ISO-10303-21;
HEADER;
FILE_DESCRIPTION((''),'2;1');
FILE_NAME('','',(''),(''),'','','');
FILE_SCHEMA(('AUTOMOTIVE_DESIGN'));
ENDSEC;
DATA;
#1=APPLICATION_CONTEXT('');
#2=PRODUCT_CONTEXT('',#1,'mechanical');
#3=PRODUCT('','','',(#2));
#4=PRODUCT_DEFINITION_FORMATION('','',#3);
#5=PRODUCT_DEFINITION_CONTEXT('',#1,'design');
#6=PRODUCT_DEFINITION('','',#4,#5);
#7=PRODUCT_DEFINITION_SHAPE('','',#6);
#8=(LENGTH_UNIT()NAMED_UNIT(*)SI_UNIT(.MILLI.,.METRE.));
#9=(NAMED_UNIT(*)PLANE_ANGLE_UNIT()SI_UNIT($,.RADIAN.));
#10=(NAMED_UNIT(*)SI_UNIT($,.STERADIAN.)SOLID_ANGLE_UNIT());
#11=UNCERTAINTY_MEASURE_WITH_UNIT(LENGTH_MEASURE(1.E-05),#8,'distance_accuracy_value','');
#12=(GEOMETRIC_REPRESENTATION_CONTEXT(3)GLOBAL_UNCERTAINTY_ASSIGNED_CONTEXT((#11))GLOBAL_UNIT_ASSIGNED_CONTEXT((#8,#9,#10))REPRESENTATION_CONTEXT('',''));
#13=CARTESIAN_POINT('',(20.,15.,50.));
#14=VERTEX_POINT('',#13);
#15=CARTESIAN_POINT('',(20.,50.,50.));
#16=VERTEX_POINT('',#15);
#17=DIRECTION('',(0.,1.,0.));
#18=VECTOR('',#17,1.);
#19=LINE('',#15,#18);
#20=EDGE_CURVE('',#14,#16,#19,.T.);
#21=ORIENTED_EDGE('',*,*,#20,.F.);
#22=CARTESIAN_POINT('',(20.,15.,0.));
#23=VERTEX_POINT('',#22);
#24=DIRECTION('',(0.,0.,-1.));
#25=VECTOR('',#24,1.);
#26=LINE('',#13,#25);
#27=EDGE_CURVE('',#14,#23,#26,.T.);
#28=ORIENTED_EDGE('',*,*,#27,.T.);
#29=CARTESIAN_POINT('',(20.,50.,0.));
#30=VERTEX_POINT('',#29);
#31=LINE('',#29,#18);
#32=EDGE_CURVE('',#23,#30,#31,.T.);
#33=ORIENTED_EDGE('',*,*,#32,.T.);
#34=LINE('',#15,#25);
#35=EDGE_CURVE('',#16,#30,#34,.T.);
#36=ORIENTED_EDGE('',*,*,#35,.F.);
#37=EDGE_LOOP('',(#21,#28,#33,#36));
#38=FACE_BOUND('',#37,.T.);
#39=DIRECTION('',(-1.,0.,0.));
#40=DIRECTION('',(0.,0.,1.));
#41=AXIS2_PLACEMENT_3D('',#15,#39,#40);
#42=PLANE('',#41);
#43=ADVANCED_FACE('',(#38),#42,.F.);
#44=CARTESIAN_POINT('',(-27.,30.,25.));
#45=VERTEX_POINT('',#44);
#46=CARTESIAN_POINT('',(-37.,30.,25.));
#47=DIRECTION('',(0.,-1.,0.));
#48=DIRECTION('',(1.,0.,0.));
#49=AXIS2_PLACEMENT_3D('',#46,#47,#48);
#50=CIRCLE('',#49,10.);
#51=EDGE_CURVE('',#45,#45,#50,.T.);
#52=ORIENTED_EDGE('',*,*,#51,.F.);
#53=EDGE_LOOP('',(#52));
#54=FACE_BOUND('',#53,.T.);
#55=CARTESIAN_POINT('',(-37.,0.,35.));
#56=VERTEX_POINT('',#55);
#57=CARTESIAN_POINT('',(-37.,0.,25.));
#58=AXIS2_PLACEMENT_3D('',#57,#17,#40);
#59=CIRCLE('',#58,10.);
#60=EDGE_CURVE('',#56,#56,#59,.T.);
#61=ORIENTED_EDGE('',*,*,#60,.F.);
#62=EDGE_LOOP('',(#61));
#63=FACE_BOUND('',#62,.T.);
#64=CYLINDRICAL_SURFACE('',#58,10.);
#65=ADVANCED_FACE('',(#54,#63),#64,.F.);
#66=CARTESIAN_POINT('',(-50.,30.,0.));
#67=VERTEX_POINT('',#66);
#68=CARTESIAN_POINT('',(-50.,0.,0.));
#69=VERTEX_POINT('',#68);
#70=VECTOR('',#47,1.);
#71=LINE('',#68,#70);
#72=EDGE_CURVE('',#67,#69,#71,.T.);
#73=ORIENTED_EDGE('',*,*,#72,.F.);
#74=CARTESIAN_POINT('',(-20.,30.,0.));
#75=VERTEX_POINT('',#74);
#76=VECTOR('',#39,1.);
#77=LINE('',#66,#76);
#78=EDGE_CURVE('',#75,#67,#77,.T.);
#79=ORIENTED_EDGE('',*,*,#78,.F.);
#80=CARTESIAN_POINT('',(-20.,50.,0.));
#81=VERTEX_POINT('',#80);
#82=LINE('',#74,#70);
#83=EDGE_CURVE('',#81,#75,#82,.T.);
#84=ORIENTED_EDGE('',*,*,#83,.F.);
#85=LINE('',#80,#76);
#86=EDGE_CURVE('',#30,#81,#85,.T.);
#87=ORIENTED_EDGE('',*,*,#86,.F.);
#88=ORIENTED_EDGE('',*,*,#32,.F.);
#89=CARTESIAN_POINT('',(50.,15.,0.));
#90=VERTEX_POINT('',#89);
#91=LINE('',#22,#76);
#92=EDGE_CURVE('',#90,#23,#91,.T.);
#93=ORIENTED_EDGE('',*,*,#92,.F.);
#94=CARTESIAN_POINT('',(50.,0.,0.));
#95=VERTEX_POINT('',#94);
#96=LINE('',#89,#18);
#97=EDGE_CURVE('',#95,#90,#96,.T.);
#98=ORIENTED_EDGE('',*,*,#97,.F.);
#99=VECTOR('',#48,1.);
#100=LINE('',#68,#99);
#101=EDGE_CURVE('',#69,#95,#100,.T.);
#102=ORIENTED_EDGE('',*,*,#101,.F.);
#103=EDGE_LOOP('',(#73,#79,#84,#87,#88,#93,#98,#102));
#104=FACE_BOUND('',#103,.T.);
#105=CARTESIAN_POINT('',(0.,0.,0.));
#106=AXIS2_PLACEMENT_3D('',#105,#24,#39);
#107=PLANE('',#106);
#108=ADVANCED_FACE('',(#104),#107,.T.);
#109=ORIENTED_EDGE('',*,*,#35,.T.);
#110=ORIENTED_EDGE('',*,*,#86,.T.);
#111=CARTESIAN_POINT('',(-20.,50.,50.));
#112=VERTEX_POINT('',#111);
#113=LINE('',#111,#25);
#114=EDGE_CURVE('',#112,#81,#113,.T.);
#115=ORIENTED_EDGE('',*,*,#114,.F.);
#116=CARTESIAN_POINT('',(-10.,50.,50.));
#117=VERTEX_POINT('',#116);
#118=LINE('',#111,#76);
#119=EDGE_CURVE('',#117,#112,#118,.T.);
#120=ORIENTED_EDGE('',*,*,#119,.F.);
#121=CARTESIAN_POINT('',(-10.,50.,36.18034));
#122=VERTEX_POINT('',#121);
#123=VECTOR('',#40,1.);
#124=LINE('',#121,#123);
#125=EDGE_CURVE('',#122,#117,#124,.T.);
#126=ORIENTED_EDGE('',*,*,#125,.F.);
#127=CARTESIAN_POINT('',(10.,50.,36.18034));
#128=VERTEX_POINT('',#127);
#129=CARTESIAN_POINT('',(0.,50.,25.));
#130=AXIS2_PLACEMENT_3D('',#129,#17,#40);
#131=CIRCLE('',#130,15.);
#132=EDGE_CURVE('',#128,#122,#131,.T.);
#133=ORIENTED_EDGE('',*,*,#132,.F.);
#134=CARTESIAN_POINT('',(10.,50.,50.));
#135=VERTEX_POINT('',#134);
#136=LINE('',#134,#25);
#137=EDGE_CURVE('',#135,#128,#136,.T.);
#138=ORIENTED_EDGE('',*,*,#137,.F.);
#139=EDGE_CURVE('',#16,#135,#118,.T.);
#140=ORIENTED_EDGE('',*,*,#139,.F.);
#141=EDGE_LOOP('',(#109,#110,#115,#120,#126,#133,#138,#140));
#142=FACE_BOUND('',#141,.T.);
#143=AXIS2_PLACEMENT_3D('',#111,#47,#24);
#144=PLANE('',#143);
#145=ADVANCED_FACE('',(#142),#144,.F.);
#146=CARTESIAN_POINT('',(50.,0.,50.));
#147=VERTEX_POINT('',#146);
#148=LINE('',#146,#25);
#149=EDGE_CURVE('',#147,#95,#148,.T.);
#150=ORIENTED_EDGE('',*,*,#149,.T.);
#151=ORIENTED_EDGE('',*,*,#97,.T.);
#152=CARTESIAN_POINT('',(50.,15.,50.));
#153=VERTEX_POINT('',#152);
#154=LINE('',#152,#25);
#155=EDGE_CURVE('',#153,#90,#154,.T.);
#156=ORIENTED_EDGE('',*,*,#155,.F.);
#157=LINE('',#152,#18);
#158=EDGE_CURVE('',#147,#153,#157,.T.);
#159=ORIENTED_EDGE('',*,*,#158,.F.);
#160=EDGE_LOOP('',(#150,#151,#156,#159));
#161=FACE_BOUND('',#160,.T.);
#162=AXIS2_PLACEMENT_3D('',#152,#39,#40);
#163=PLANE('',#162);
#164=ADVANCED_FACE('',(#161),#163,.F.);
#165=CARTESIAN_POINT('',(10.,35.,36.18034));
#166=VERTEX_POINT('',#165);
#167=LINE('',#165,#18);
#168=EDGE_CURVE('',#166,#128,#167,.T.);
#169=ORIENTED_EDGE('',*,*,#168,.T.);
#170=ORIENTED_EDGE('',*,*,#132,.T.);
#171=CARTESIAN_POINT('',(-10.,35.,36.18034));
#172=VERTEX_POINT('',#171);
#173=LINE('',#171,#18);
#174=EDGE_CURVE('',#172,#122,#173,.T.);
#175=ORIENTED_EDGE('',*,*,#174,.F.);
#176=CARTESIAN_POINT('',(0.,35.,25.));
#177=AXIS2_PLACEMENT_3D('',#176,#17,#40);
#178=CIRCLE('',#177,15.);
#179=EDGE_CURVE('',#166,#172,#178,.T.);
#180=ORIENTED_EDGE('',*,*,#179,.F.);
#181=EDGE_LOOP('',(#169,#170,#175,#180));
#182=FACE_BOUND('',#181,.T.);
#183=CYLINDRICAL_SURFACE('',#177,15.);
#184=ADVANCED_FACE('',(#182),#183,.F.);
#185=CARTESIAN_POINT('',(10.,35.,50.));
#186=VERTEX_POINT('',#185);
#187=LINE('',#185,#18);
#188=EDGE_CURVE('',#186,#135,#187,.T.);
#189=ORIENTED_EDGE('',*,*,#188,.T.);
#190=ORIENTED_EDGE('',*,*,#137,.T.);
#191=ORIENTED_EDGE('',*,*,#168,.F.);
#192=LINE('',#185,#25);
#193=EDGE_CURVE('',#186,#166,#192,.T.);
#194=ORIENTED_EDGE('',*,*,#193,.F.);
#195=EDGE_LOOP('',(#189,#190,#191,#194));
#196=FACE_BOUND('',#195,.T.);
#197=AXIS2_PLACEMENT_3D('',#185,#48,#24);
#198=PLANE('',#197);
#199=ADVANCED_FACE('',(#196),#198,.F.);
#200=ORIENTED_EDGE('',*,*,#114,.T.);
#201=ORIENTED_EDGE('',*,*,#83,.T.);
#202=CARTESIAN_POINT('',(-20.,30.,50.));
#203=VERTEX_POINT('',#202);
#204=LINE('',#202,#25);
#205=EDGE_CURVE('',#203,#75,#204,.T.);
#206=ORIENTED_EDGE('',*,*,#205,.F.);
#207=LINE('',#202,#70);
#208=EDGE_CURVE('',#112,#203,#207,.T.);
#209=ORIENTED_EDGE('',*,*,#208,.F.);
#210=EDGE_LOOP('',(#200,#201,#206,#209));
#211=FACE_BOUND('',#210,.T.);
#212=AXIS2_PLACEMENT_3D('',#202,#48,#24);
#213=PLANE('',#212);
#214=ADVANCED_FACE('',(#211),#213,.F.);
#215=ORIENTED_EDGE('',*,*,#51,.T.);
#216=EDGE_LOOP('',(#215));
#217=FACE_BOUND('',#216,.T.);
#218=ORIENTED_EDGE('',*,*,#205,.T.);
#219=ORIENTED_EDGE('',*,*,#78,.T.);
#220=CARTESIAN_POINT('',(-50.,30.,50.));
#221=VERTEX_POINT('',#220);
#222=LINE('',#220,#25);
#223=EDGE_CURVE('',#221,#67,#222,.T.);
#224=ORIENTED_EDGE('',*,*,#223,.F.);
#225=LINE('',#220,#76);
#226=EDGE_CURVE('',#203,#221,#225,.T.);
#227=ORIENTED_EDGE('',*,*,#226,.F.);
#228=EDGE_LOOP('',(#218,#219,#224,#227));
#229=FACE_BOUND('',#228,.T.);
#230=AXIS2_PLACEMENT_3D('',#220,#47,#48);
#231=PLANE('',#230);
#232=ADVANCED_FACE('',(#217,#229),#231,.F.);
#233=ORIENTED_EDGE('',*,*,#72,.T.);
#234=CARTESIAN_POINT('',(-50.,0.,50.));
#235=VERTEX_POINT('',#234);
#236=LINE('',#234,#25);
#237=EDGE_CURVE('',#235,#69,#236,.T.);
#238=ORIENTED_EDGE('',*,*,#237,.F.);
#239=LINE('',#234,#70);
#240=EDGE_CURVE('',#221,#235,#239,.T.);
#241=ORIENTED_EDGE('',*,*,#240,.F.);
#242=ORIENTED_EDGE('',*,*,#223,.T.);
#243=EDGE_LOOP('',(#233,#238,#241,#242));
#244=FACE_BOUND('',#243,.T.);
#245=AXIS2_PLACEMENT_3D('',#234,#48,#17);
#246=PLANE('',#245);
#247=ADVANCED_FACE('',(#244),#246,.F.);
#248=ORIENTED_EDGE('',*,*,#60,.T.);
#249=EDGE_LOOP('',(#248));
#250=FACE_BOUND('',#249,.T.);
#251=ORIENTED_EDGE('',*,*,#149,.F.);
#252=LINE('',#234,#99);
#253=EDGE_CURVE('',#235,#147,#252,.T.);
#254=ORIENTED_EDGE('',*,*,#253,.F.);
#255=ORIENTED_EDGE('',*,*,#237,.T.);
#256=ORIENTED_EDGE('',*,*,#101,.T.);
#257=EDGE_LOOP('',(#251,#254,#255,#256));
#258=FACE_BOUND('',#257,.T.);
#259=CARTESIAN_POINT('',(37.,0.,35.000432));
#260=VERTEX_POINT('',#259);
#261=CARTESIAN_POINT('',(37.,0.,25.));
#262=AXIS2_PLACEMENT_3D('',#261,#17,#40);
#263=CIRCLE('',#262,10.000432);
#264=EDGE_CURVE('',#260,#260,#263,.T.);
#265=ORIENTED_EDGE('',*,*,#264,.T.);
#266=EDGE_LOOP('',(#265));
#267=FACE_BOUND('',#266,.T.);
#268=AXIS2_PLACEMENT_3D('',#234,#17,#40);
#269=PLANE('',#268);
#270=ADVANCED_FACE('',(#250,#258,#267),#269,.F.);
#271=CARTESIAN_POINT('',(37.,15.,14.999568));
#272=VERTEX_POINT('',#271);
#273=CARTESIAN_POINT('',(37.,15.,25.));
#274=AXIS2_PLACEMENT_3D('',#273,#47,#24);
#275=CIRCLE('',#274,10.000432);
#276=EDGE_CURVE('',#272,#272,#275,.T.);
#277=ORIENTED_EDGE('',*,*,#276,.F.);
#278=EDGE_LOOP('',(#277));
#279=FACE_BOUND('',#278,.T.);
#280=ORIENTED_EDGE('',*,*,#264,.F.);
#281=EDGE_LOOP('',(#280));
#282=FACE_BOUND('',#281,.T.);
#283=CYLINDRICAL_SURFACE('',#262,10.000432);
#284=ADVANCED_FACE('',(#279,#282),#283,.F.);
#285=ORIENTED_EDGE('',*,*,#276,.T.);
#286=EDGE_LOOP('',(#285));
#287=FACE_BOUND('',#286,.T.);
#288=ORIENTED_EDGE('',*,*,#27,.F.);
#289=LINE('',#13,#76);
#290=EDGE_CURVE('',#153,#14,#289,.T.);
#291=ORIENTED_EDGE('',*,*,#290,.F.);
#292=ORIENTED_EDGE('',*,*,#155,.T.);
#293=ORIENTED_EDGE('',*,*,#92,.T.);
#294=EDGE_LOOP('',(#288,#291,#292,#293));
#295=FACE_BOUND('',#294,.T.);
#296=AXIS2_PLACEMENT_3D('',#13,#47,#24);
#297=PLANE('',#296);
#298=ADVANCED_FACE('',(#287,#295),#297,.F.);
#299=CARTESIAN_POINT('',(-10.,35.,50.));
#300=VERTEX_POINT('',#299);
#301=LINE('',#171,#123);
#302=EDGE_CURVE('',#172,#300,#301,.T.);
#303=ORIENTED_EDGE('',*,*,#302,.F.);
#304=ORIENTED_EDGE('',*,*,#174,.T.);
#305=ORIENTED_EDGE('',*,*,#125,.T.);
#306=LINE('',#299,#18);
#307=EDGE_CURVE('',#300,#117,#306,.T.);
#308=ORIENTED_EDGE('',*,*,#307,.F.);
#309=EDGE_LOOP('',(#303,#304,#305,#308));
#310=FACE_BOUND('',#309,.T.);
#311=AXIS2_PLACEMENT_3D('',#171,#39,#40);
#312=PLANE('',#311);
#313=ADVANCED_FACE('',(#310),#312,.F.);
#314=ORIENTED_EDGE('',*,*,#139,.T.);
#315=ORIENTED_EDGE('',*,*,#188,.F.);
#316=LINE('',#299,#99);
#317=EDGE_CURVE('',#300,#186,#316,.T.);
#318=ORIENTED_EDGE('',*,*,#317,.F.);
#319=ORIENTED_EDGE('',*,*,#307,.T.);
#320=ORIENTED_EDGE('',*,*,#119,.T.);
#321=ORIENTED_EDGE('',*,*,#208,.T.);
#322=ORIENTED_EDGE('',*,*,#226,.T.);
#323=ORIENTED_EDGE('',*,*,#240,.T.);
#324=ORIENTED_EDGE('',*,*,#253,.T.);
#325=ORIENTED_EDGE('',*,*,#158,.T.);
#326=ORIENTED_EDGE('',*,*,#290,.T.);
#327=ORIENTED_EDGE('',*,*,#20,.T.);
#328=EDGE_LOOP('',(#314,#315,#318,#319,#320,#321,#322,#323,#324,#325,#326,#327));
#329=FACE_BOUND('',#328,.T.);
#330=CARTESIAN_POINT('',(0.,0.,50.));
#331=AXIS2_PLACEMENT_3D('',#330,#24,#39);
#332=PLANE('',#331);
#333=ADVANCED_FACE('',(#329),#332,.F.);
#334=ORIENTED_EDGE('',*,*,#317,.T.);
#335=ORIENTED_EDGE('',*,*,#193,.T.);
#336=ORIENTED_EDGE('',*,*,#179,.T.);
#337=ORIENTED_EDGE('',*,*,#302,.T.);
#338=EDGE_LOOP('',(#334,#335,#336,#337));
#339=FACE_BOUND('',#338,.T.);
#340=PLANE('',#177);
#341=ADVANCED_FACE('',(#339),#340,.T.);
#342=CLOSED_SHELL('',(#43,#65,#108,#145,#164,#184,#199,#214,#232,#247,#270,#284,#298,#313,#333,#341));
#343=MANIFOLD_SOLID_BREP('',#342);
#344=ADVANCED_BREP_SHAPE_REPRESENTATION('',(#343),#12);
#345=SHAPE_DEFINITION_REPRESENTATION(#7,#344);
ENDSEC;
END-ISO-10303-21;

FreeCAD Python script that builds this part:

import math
import FreeCAD as App
import Part
import Sketcher

V = App.Vector


def add_polygon(sketch, points):
    """Adds a closed chain of lines whose ends are joined by coincident constraints."""
    first, n = sketch.GeometryCount, len(points)
    for a, b in zip(points, points[1:] + points[:1]):
        sketch.addGeometry(Part.LineSegment(App.Vector(*a, 0), App.Vector(*b, 0)), False)
    for i in range(n):
        sketch.addConstraint(Sketcher.Constraint("Coincident", first + i, 2, first + (i + 1) % n, 1))

doc = App.newDocument("Part")
params = doc.addObject("Spreadsheet::Sheet", "Params")
for row, (alias, value) in enumerate([
    ("sketch1_width", "100 mm"),
    ("sketch1_width2", "30 mm"),
    ("sketch1_height", "15 mm"),
    ("sketch1_height2", "35 mm"),
    ("pad1_length", "50 mm"),
    ("sketch2_diameter", "20 mm"),
    ("sketch3_diameter", "30 mm"),
    ("pocket2_length", "15 mm"),
    ("sketch4_radius", "15 mm"),
    ("sketch4_width", "20 mm"),
    ("pocket3_length", "15 mm"),
], start=1):
    params.set(f"A{row}", alias)
    params.set(f"B{row}", "=" + value)
    params.setAlias(f"B{row}", alias)

body = doc.addObject("PartDesign::Body", "Body")

# Sketch on XY plane
sketch1 = body.newObject("Sketcher::SketchObject", "Sketch")
sketch1.AttachmentSupport = (doc.getObject("XY_Plane"), [""])
sketch1.MapMode = "FlatFace"
add_polygon(sketch1, [(-50, 0), (50, 0), (50, 15), (20, 15), (20, 50), (-20, 50), (-20, 30), (-50, 30)])  # lines 0-7
sketch1.addConstraint(Sketcher.Constraint("Horizontal", 0))
sketch1.addConstraint(Sketcher.Constraint("Vertical", 1))
sketch1.addConstraint(Sketcher.Constraint("Horizontal", 2))
sketch1.addConstraint(Sketcher.Constraint("Vertical", 3))
sketch1.addConstraint(Sketcher.Constraint("Horizontal", 4))
sketch1.addConstraint(Sketcher.Constraint("Vertical", 5))
sketch1.addConstraint(Sketcher.Constraint("Horizontal", 6))
sketch1.addConstraint(Sketcher.Constraint("Vertical", 7))
sketch1.addConstraint(Sketcher.Constraint("Symmetric", 0, 2, 7, 2, -1, 1))
sketch1.addConstraint(Sketcher.Constraint("Equal", 2, 6))
sketch1.addConstraint(Sketcher.Constraint("Equal", 6, 7))
sketch1.addConstraint(Sketcher.Constraint("DistanceX", 0, 1, 0, 2, 100.0))
sketch1.addConstraint(Sketcher.Constraint("DistanceX", 2, 2, 2, 1, 30.0))
sketch1.addConstraint(Sketcher.Constraint("DistanceY", 1, 1, 1, 2, 15.0))
sketch1.addConstraint(Sketcher.Constraint("DistanceY", 3, 1, 3, 2, 35.0))
sketch1.setExpression("Constraints[19]", "Params.sketch1_width")
sketch1.setExpression("Constraints[20]", "Params.sketch1_width2")
sketch1.setExpression("Constraints[21]", "Params.sketch1_height")
sketch1.setExpression("Constraints[22]", "Params.sketch1_height2")
pad1 = body.newObject("PartDesign::Pad", "Pad")
pad1.Profile = sketch1
pad1.setExpression("Length", "Params.pad1_length")

# Sketch on XZ plane
sketch2 = body.newObject("Sketcher::SketchObject", "Sketch001")
sketch2.AttachmentSupport = (doc.getObject("XZ_Plane"), [""])
sketch2.MapMode = "FlatFace"
sketch2.AttachmentOffset = App.Placement(V(0, 0, -50), App.Rotation())
sketch2.addGeometry(Part.Circle(V(-37, 25, 0), V(0, 0, 1), 10), False)
sketch2.addGeometry(Part.Circle(V(37, 25, 0), V(0, 0, 1), 10.000432), False)
sketch2.addConstraint(Sketcher.Constraint("Symmetric", 0, 3, 1, 3, -2))
sketch2.addConstraint(Sketcher.Constraint("Diameter", 0, 20.0))
sketch2.addConstraint(Sketcher.Constraint("DistanceX", 0, 3, -1, 1, 37.0))
sketch2.addConstraint(Sketcher.Constraint("DistanceY", -1, 1, 0, 3, 25.0))
sketch2.addConstraint(Sketcher.Constraint("Diameter", 1, 20.000864))
sketch2.setExpression("Constraints[1]", "Params.sketch2_diameter")
pocket1 = body.newObject("PartDesign::Pocket", "Pocket")
pocket1.Profile = sketch2
pocket1.Type = "ThroughAll"
pocket1.Reversed = True

# Sketch on XZ plane
sketch3 = body.newObject("Sketcher::SketchObject", "Sketch002")
sketch3.AttachmentSupport = (doc.getObject("XZ_Plane"), [""])
sketch3.MapMode = "FlatFace"
sketch3.AttachmentOffset = App.Placement(V(0, 0, -50), App.Rotation())
sketch3.addGeometry(Part.Circle(V(0, 25, 0), V(0, 0, 1), 15), False)
sketch3.addConstraint(Sketcher.Constraint("PointOnObject", 0, 3, -2))
sketch3.addConstraint(Sketcher.Constraint("Diameter", 0, 30.0))
sketch3.addConstraint(Sketcher.Constraint("DistanceY", -1, 1, 0, 3, 25.0))
sketch3.setExpression("Constraints[1]", "Params.sketch3_diameter")
pocket2 = body.newObject("PartDesign::Pocket", "Pocket001")
pocket2.Profile = sketch3
pocket2.setExpression("Length", "Params.pocket2_length")
pocket2.Reversed = True

# Sketch on XZ plane
sketch4 = body.newObject("Sketcher::SketchObject", "Sketch003")
sketch4.AttachmentSupport = (doc.getObject("XZ_Plane"), [""])
sketch4.MapMode = "FlatFace"
sketch4.AttachmentOffset = App.Placement(V(0, 0, -50), App.Rotation())
sketch4.addGeometry(Part.LineSegment(V(-10, 36.18034, 0), V(-10, 50, 0)), False)
sketch4.addGeometry(Part.LineSegment(V(-10, 50, 0), V(10, 50, 0)), False)
sketch4.addGeometry(Part.LineSegment(V(10, 50, 0), V(10, 36.18034, 0)), False)
sketch4.addGeometry(Part.ArcOfCircle(Part.Circle(V(0, 25, 0), V(0, 0, 1), 15), math.radians(48.189685), math.radians(131.810315)), False)
sketch4.addConstraint(Sketcher.Constraint("Coincident", 0, 2, 1, 1))
sketch4.addConstraint(Sketcher.Constraint("Coincident", 1, 2, 2, 1))
sketch4.addConstraint(Sketcher.Constraint("Coincident", 2, 2, 3, 1))
sketch4.addConstraint(Sketcher.Constraint("Coincident", 3, 2, 0, 1))
sketch4.addConstraint(Sketcher.Constraint("Vertical", 0))
sketch4.addConstraint(Sketcher.Constraint("Horizontal", 1))
sketch4.addConstraint(Sketcher.Constraint("Vertical", 2))
sketch4.addConstraint(Sketcher.Constraint("Symmetric", 2, 2, 3, 2, -2))
sketch4.addConstraint(Sketcher.Constraint("Radius", 3, 15.0))
sketch4.addConstraint(Sketcher.Constraint("DistanceX", 1, 1, 1, 2, 20.0))
sketch4.addConstraint(Sketcher.Constraint("DistanceY", -1, 1, 3, 3, 25.0))
sketch4.addConstraint(Sketcher.Constraint("DistanceY", -1, 1, 0, 2, 50.0))
sketch4.setExpression("Constraints[8]", "Params.sketch4_radius")
sketch4.setExpression("Constraints[9]", "Params.sketch4_width")
pocket3 = body.newObject("PartDesign::Pocket", "Pocket002")
pocket3.Profile = sketch4
pocket3.setExpression("Length", "Params.pocket3_length")
pocket3.Reversed = True

doc.recompute()
